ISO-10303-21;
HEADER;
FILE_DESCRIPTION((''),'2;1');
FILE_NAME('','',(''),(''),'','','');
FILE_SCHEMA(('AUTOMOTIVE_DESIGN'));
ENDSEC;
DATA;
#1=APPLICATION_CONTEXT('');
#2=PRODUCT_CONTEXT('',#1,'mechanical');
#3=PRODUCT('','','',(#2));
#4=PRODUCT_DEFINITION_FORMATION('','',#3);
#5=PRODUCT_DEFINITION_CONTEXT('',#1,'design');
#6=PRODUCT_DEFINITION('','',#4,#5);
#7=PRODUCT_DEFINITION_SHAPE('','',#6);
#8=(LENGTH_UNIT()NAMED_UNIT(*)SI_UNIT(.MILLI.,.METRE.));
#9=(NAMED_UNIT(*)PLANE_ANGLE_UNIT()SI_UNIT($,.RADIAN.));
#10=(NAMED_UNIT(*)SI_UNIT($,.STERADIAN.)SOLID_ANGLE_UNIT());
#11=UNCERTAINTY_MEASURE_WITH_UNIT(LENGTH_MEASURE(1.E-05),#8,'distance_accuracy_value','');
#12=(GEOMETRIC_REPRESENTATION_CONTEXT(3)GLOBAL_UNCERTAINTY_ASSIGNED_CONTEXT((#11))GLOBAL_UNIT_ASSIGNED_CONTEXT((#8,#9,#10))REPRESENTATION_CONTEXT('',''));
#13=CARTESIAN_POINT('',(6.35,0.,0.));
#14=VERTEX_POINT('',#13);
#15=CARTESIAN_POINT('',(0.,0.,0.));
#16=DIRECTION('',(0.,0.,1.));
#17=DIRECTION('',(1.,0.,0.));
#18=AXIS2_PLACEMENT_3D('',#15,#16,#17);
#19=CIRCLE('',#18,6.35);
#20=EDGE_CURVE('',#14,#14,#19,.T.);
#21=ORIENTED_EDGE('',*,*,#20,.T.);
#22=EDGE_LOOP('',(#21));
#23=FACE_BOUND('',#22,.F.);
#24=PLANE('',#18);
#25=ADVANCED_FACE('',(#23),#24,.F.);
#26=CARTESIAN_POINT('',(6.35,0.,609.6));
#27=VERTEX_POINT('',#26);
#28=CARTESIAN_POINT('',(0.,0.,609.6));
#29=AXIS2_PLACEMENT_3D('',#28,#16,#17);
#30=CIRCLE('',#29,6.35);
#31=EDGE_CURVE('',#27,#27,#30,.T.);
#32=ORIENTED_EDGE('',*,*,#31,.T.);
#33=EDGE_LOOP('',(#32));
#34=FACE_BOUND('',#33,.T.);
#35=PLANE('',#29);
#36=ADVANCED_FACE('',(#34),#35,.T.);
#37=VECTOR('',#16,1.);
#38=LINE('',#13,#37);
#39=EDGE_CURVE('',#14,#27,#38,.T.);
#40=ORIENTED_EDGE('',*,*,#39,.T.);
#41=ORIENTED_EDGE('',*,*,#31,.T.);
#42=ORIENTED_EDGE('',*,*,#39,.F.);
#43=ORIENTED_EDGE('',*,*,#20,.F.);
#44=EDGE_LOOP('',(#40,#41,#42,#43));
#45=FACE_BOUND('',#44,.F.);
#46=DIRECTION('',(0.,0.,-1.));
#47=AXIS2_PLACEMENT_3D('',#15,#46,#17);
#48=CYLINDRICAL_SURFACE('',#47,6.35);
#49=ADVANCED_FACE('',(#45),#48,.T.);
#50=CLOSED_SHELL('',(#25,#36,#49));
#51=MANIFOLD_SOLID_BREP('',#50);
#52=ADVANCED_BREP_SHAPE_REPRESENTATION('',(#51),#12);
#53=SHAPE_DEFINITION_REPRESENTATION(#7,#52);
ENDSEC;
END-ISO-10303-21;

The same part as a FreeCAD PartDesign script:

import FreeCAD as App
import Part
import Sketcher

V = App.Vector
Q = App.Units.Quantity

doc = App.newDocument("Part")
body = doc.addObject("PartDesign::Body", "Body")

# Sketch on XY plane
sketch1 = body.newObject("Sketcher::SketchObject", "Sketch")
sketch1.AttachmentSupport = (doc.getObject("XY_Plane"), [""])
sketch1.MapMode = "FlatFace"
sketch1.addGeometry(Part.Circle(V(0, 0, 0), V(0, 0, 1), 6), False)
sketch1.addConstraint([
    Sketcher.Constraint("Coincident", 0, 3, -1, 1),
    Sketcher.Constraint("Diameter", 0, Q("0.5 in")),
])
pad1 = body.newObject("PartDesign::Pad", "Pad")
pad1.Profile = sketch1
pad1.Length = Q("24 in")

doc.recompute()
